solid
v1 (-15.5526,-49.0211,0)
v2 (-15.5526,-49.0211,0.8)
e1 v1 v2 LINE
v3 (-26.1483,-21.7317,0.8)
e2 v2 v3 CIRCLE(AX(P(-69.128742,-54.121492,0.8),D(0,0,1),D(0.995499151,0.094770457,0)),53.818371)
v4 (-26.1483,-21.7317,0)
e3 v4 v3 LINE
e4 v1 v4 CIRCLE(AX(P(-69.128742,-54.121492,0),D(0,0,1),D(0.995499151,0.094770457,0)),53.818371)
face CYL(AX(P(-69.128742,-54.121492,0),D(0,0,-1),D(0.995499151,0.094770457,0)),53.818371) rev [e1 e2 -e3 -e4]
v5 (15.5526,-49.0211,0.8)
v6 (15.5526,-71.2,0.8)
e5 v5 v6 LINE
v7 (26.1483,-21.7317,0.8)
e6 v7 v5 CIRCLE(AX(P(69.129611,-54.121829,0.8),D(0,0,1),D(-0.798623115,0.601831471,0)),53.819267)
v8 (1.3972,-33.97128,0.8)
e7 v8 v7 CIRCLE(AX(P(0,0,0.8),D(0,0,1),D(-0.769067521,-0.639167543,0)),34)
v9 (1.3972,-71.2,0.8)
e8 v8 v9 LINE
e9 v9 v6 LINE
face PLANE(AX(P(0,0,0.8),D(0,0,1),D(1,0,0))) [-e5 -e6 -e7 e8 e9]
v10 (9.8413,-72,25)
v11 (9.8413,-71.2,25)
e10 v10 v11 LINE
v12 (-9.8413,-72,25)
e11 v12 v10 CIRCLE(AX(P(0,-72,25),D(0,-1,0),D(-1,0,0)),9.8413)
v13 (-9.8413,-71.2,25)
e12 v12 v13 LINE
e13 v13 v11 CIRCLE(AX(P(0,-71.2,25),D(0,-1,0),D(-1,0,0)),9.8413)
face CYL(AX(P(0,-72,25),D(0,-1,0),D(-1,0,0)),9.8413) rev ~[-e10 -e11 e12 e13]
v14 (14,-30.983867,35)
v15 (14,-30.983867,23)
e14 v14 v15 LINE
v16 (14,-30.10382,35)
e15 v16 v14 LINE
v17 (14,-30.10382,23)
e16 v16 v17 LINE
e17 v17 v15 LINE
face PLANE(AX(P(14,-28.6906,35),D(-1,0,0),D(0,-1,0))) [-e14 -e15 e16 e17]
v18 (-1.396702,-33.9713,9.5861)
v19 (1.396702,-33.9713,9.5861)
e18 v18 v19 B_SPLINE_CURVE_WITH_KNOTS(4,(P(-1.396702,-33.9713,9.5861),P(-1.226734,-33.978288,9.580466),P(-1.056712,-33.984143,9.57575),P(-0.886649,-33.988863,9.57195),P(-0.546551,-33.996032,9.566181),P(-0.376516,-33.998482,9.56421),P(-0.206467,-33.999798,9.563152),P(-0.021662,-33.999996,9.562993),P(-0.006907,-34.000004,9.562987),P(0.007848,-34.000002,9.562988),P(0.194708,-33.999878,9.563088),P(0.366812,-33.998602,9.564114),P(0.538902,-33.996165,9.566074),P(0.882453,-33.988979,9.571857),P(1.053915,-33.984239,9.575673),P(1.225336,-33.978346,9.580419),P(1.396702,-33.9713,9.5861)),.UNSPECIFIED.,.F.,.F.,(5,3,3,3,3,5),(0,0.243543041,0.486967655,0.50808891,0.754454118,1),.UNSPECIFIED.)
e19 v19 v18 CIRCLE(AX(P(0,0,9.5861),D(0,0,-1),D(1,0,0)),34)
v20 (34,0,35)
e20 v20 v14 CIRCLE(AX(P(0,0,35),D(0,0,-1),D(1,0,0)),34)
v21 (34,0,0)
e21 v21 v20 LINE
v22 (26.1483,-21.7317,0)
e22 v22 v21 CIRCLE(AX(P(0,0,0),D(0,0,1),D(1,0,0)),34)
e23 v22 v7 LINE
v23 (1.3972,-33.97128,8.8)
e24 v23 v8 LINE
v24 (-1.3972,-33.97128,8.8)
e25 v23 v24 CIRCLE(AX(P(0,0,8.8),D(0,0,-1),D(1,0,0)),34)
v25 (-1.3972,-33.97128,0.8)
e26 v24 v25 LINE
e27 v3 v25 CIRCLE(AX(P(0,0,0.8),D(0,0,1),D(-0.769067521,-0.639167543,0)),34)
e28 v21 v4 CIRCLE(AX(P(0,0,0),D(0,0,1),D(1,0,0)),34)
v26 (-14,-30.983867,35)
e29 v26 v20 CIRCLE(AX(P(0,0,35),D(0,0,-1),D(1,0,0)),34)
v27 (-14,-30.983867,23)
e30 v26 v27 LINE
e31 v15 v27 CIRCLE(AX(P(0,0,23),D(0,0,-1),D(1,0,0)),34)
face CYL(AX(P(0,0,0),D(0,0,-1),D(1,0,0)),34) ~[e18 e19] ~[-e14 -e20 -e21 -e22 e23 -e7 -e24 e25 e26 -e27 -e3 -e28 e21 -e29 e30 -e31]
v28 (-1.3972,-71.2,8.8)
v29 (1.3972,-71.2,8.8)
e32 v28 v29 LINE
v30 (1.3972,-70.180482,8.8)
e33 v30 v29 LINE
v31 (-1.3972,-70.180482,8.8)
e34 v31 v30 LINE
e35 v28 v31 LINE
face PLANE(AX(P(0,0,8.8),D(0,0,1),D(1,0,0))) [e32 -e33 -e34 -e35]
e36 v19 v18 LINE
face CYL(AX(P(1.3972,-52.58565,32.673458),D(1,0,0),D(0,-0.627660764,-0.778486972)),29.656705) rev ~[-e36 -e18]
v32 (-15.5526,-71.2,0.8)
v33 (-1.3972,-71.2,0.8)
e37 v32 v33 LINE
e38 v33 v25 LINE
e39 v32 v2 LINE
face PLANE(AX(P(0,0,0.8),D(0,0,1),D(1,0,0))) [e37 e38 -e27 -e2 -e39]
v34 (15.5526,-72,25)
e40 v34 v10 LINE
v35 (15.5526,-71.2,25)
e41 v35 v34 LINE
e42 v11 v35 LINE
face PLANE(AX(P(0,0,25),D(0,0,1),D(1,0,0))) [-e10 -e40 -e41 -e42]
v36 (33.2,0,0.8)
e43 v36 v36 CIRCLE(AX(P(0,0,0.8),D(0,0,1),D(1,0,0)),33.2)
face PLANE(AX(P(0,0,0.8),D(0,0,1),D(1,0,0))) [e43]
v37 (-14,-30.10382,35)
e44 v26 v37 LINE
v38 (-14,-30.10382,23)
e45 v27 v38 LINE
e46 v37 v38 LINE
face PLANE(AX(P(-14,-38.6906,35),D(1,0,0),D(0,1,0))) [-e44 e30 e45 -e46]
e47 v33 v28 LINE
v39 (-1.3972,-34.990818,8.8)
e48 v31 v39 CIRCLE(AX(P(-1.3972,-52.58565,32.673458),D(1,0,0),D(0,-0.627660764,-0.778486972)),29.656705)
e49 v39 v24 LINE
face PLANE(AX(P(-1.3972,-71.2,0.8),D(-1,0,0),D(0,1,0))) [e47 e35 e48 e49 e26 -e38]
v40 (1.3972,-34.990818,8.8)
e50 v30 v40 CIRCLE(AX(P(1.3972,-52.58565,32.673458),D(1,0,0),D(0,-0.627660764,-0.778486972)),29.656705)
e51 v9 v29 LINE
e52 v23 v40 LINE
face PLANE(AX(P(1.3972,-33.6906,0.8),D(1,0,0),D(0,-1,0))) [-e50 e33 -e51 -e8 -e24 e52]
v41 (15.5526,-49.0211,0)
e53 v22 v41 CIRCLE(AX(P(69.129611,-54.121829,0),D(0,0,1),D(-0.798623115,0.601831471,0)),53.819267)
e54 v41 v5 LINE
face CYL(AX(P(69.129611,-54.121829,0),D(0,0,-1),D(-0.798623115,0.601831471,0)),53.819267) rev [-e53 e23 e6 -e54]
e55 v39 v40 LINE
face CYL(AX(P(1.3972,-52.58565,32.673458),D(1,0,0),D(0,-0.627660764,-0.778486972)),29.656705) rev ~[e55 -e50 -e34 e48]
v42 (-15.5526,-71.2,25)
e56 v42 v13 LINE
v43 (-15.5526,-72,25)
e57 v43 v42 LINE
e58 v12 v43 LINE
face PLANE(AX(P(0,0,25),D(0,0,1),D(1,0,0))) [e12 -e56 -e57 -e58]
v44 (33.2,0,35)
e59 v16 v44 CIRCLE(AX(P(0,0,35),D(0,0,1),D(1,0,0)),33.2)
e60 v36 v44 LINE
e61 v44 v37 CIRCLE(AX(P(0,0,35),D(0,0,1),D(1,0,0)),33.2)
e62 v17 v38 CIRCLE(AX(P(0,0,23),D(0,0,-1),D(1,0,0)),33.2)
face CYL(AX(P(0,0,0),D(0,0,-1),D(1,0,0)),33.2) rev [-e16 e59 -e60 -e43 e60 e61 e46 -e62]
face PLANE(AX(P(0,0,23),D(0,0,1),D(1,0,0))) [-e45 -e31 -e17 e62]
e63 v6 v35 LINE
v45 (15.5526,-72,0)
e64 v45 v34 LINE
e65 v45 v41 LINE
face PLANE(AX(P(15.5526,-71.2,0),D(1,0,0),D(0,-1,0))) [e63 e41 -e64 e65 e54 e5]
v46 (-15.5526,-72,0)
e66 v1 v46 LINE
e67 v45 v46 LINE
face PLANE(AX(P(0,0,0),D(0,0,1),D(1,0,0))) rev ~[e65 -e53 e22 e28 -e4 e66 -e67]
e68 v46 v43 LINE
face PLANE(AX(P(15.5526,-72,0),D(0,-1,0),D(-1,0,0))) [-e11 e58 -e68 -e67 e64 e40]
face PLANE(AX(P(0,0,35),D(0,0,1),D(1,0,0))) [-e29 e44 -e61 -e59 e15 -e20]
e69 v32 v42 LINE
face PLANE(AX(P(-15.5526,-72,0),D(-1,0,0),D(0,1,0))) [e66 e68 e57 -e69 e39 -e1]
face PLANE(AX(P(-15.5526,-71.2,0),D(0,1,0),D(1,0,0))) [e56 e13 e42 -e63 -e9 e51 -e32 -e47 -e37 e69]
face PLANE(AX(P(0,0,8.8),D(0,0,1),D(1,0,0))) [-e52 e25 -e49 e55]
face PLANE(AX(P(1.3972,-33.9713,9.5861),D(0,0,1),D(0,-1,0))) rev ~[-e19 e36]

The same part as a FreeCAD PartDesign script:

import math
import FreeCAD as App
import Part
import Sketcher

V = App.Vector


def add_polygon(sketch, points):
    """Adds a closed chain of lines whose ends are joined by coincident constraints."""
    first, n = sketch.GeometryCount, len(points)
    for a, b in zip(points, points[1:] + points[:1]):
        sketch.addGeometry(Part.LineSegment(App.Vector(*a, 0), App.Vector(*b, 0)), False)
    for i in range(n):
        sketch.addConstraint(Sketcher.Constraint("Coincident", first + i, 2, first + (i + 1) % n, 1))

doc = App.newDocument("Part")
params = doc.addObject("Spreadsheet::Sheet", "Params")
for row, (alias, value) in enumerate([
    ("sketch1_radius", "34 mm"),
    ("sketch1_diameter", "66.4 mm"),
    ("pad1_length", "0.8 mm"),
    ("sketch2_height", "0.8 mm"),
    ("pad2_length", "25 mm"),
    ("sketch3_diameter", "68 mm"),
    ("sketch3_diameter2", "66.4 mm"),
    ("pad3_length", "35 mm"),
    ("pocket1_length", "2 mm"),
    ("pad4_length", "8 mm"),
    ("pocket2_length", "2.7945 mm"),
    ("sketch7_width", "28 mm"),
    ("sketch7_height", "10 mm"),
    ("pocket3_length", "12 mm"),
], start=1):
    params.set(f"A{row}", alias)
    params.set(f"B{row}", "=" + value)
    params.setAlias(f"B{row}", alias)

body = doc.addObject("PartDesign::Body", "Body")
body.AllowCompound = True

sketch1 = body.newObject("Sketcher::SketchObject", "Sketch")
sketch1.AttachmentSupport = (doc.getObject("XY_Plane"), [""])
sketch1.MapMode = "FlatFace"
sketch1.addGeometry([
    Part.ArcOfCircle(Part.Circle(V(0, 0, 0), V(0, 0, 1), 34), math.radians(-140.270227), math.radians(-39.729773)),
    Part.ArcOfCircle(Part.Circle(V(-69.1292, -54.1216, 0), V(0, 0, 1), 53.818837), math.radians(5.438177), math.radians(37.001249)),
    Part.LineSegment(V(-15.5526, -49.0211, 0), V(-15.5526, -71.2, 0)),
    Part.LineSegment(V(-15.5526, -71.2, 0), V(15.5526, -71.2, 0)),
    Part.LineSegment(V(15.5526, -71.2, 0), V(15.5526, -49.0211, 0)),
    Part.ArcOfCircle(Part.Circle(V(69.1292, -54.1216, 0), V(0, 0, 1), 53.818801), math.radians(142.998751), math.radians(174.561823)),
    Part.Circle(V(0, 0, 0), V(0, 0, 1), 33.2),
], False)
sketch1.addConstraint([
    Sketcher.Constraint("Coincident", 0, 1, 1, 2),
    Sketcher.Constraint("Coincident", 1, 1, 2, 1),
    Sketcher.Constraint("Coincident", 2, 2, 3, 1),
    Sketcher.Constraint("Coincident", 3, 2, 4, 1),
    Sketcher.Constraint("Coincident", 4, 2, 5, 2),
    Sketcher.Constraint("Coincident", 5, 1, 0, 2),
    Sketcher.Constraint("Vertical", 2),
    Sketcher.Constraint("Horizontal", 3),
    Sketcher.Constraint("Vertical", 4),
    Sketcher.Constraint("Coincident", 0, 3, -1, 1),
    Sketcher.Constraint("Coincident", 6, 3, -1, 1),
    Sketcher.Constraint("Equal", 1, 5),
    Sketcher.Constraint("Symmetric", 1, 3, 5, 3, -2),
    Sketcher.Constraint("Horizontal", 1, 1, 4, 2),
    Sketcher.Constraint("Radius", 0, 34.0),
    Sketcher.Constraint("Diameter", 6, 66.4),
    Sketcher.Constraint("DistanceY", 2, 2, -1, 1, 71.2),
    Sketcher.Constraint("Radius", 1, 53.8188),
    Sketcher.Constraint("DistanceY", 2, 2, 2, 1, 22.179),
    Sketcher.Constraint("DistanceY", 1, 3, 0, 1, 32.39),
    Sketcher.Constraint("DistanceX", 3, 1, 3, 2, 31.1052),
])
sketch1.setExpression("Constraints[14]", "Params.sketch1_radius")
sketch1.setExpression("Constraints[15]", "Params.sketch1_diameter")
pad1 = body.newObject("PartDesign::Pad", "Pad")
pad1.Profile = sketch1
pad1.setExpression("Length", "Params.pad1_length")

sketch2 = body.newObject("Sketcher::SketchObject", "Sketch001")
sketch2.AttachmentSupport = (doc.getObject("XY_Plane"), [""])
sketch2.MapMode = "FlatFace"
add_polygon(sketch2, [(15.5526, -71.2), (-15.5526, -71.2), (-15.5526, -72), (15.5526, -72)])
sketch2.addConstraint([
    Sketcher.Constraint("Horizontal", 0),
    Sketcher.Constraint("Vertical", 1),
    Sketcher.Constraint("Horizontal", 2),
    Sketcher.Constraint("Vertical", 3),
    Sketcher.Constraint("DistanceY", 1, 2, 1, 1, 0.8),
    Sketcher.Constraint("DistanceY", 1, 2, -1, 1, 72.0),
    Sketcher.Constraint("DistanceX", 0, 2, 0, 1, 31.1052),
    Sketcher.Constraint("DistanceX", 0, 2, -1, 1, 15.5526),
])
sketch2.setExpression("Constraints[8]", "Params.sketch2_height")
pad2 = body.newObject("PartDesign::Pad", "Pad001")
pad2.Profile = sketch2
pad2.setExpression("Length", "Params.pad2_length")

sketch3 = body.newObject("Sketcher::SketchObject", "Sketch002")
sketch3.AttachmentSupport = (doc.getObject("XY_Plane"), [""])
sketch3.MapMode = "FlatFace"
sketch3.addGeometry([
    Part.Circle(V(0, 0, 0), V(0, 0, 1), 34),
    Part.Circle(V(0, 0, 0), V(0, 0, 1), 33.2),
], False)
sketch3.addConstraint([
    Sketcher.Constraint("Coincident", 0, 3, -1, 1),
    Sketcher.Constraint("Coincident", 1, 3, -1, 1),
    Sketcher.Constraint("Diameter", 0, 68.0),
    Sketcher.Constraint("Diameter", 1, 66.4),
])
sketch3.setExpression("Constraints[2]", "Params.sketch3_diameter")
sketch3.setExpression("Constraints[3]", "Params.sketch3_diameter2")
pad3 = body.newObject("PartDesign::Pad", "Pad002")
pad3.Profile = sketch3
pad3.setExpression("Length", "Params.pad3_length")

sketch4 = body.newObject("Sketcher::SketchObject", "Sketch003")
sketch4.AttachmentSupport = (doc.getObject("XZ_Plane"), [""])
sketch4.MapMode = "FlatFace"
sketch4.AttachmentOffset = App.Placement(V(0, 0, 72), App.Rotation())
sketch4.addGeometry([
    Part.ArcOfCircle(Part.Circle(V(0, 25, 0), V(0, 0, 1), 9.8413), math.radians(180), math.radians(360)),
    Part.LineSegment(V(9.8413, 25, 0), V(-9.8413, 25, 0)),
], False)
sketch4.addConstraint([
    Sketcher.Constraint("Coincident", 0, 1, 1, 2),
    Sketcher.Constraint("Coincident", 1, 1, 0, 2),
    Sketcher.Constraint("Horizontal", 1),
    Sketcher.Constraint("PointOnObject", 0, 3, -2),
    Sketcher.Constraint("DistanceY", -1, 1, 0, 3, 25.0),
    Sketcher.Constraint("DistanceY", -1, 1, 0, 1, 25.0),
    Sketcher.Constraint("Radius", 0, 9.8413),
])
pocket1 = body.newObject("PartDesign::Pocket", "Pocket")
pocket1.Profile = sketch4
pocket1.setExpression("Length", "Params.pocket1_length")

sketch5 = body.newObject("Sketcher::SketchObject", "Sketch004")
sketch5.AttachmentSupport = (doc.getObject("XY_Plane"), [""])
sketch5.MapMode = "FlatFace"
sketch5.AttachmentOffset = App.Placement(V(0, 0, 0.8), App.Rotation())
add_polygon(sketch5, [(-1.3972, -33.6906), (-1.3972, -71.2), (1.3972, -71.2), (1.3972, -33.6906)])
sketch5.addConstraint([
    Sketcher.Constraint("Vertical", 0),
    Sketcher.Constraint("Horizontal", 1),
    Sketcher.Constraint("Vertical", 2),
    Sketcher.Constraint("Horizontal", 3),
    Sketcher.Constraint("DistanceY", 0, 2, -1, 1, 71.2),
    Sketcher.Constraint("DistanceX", 1, 1, 1, 2, 2.7944),
    Sketcher.Constraint("DistanceY", 0, 2, 0, 1, 37.5094),
    Sketcher.Constraint("DistanceX", 0, 2, -1, 1, 1.3972),
])
pad4 = body.newObject("PartDesign::Pad", "Pad003")
pad4.Profile = sketch5
pad4.setExpression("Length", "Params.pad4_length")

sketch6 = body.newObject("Sketcher::SketchObject", "Sketch005")
sketch6.AttachmentSupport = (doc.getObject("YZ_Plane"), [""])
sketch6.MapMode = "FlatFace"
sketch6.AttachmentOffset = App.Placement(V(0, 0, 1.3972), App.Rotation())
sketch6.addGeometry([
    Part.LineSegment(V(-33.9713, 9.5861, 0), V(-71.2, 9.5861, 0)),
    Part.ArcOfCircle(Part.Circle(V(-52.5856, 32.6736, 0), V(0, 0, 1), 29.656846), math.radians(-128.877651), math.radians(-51.122499)),
], False)
sketch6.addConstraint([
    Sketcher.Constraint("Coincident", 0, 1, 1, 2),
    Sketcher.Constraint("Coincident", 1, 1, 0, 2),
    Sketcher.Constraint("Horizontal", 0),
    Sketcher.Constraint("DistanceX", 1, 1, -1, 1, 71.2),
    Sketcher.Constraint("Radius", 1, 29.6568),
    Sketcher.Constraint("DistanceX", 0, 2, 0, 1, 37.2287),
    Sketcher.Constraint("DistanceY", -1, 1, 0, 1, 9.586),
])
pocket2 = body.newObject("PartDesign::Pocket", "Pocket001")
pocket2.Profile = sketch6
pocket2.setExpression("Length", "Params.pocket2_length")

sketch7 = body.newObject("Sketcher::SketchObject", "Sketch006")
sketch7.AttachmentSupport = (doc.getObject("XY_Plane"), [""])
sketch7.MapMode = "FlatFace"
sketch7.AttachmentOffset = App.Placement(V(0, 0, 35), App.Rotation())
add_polygon(sketch7, [(14, -28.6906), (-14, -28.6906), (-14, -38.6906), (14, -38.6906)])
sketch7.addConstraint([
    Sketcher.Constraint("Horizontal", 0),
    Sketcher.Constraint("Vertical", 1),
    Sketcher.Constraint("Horizontal", 2),
    Sketcher.Constraint("Vertical", 3),
    Sketcher.Constraint("DistanceX", 0, 2, 0, 1, 28.0),
    Sketcher.Constraint("DistanceY", 1, 2, 1, 1, 10.0),
    Sketcher.Constraint("DistanceX", 0, 2, -1, 1, 14.0),
    Sketcher.Constraint("DistanceY", 0, 2, -1, 1, 28.6906),
])
sketch7.setExpression("Constraints[8]", "Params.sketch7_width")
sketch7.setExpression("Constraints[9]", "Params.sketch7_height")
pocket3 = body.newObject("PartDesign::Pocket", "Pocket002")
pocket3.Profile = sketch7
pocket3.setExpression("Length", "Params.pocket3_length")

doc.recompute()
